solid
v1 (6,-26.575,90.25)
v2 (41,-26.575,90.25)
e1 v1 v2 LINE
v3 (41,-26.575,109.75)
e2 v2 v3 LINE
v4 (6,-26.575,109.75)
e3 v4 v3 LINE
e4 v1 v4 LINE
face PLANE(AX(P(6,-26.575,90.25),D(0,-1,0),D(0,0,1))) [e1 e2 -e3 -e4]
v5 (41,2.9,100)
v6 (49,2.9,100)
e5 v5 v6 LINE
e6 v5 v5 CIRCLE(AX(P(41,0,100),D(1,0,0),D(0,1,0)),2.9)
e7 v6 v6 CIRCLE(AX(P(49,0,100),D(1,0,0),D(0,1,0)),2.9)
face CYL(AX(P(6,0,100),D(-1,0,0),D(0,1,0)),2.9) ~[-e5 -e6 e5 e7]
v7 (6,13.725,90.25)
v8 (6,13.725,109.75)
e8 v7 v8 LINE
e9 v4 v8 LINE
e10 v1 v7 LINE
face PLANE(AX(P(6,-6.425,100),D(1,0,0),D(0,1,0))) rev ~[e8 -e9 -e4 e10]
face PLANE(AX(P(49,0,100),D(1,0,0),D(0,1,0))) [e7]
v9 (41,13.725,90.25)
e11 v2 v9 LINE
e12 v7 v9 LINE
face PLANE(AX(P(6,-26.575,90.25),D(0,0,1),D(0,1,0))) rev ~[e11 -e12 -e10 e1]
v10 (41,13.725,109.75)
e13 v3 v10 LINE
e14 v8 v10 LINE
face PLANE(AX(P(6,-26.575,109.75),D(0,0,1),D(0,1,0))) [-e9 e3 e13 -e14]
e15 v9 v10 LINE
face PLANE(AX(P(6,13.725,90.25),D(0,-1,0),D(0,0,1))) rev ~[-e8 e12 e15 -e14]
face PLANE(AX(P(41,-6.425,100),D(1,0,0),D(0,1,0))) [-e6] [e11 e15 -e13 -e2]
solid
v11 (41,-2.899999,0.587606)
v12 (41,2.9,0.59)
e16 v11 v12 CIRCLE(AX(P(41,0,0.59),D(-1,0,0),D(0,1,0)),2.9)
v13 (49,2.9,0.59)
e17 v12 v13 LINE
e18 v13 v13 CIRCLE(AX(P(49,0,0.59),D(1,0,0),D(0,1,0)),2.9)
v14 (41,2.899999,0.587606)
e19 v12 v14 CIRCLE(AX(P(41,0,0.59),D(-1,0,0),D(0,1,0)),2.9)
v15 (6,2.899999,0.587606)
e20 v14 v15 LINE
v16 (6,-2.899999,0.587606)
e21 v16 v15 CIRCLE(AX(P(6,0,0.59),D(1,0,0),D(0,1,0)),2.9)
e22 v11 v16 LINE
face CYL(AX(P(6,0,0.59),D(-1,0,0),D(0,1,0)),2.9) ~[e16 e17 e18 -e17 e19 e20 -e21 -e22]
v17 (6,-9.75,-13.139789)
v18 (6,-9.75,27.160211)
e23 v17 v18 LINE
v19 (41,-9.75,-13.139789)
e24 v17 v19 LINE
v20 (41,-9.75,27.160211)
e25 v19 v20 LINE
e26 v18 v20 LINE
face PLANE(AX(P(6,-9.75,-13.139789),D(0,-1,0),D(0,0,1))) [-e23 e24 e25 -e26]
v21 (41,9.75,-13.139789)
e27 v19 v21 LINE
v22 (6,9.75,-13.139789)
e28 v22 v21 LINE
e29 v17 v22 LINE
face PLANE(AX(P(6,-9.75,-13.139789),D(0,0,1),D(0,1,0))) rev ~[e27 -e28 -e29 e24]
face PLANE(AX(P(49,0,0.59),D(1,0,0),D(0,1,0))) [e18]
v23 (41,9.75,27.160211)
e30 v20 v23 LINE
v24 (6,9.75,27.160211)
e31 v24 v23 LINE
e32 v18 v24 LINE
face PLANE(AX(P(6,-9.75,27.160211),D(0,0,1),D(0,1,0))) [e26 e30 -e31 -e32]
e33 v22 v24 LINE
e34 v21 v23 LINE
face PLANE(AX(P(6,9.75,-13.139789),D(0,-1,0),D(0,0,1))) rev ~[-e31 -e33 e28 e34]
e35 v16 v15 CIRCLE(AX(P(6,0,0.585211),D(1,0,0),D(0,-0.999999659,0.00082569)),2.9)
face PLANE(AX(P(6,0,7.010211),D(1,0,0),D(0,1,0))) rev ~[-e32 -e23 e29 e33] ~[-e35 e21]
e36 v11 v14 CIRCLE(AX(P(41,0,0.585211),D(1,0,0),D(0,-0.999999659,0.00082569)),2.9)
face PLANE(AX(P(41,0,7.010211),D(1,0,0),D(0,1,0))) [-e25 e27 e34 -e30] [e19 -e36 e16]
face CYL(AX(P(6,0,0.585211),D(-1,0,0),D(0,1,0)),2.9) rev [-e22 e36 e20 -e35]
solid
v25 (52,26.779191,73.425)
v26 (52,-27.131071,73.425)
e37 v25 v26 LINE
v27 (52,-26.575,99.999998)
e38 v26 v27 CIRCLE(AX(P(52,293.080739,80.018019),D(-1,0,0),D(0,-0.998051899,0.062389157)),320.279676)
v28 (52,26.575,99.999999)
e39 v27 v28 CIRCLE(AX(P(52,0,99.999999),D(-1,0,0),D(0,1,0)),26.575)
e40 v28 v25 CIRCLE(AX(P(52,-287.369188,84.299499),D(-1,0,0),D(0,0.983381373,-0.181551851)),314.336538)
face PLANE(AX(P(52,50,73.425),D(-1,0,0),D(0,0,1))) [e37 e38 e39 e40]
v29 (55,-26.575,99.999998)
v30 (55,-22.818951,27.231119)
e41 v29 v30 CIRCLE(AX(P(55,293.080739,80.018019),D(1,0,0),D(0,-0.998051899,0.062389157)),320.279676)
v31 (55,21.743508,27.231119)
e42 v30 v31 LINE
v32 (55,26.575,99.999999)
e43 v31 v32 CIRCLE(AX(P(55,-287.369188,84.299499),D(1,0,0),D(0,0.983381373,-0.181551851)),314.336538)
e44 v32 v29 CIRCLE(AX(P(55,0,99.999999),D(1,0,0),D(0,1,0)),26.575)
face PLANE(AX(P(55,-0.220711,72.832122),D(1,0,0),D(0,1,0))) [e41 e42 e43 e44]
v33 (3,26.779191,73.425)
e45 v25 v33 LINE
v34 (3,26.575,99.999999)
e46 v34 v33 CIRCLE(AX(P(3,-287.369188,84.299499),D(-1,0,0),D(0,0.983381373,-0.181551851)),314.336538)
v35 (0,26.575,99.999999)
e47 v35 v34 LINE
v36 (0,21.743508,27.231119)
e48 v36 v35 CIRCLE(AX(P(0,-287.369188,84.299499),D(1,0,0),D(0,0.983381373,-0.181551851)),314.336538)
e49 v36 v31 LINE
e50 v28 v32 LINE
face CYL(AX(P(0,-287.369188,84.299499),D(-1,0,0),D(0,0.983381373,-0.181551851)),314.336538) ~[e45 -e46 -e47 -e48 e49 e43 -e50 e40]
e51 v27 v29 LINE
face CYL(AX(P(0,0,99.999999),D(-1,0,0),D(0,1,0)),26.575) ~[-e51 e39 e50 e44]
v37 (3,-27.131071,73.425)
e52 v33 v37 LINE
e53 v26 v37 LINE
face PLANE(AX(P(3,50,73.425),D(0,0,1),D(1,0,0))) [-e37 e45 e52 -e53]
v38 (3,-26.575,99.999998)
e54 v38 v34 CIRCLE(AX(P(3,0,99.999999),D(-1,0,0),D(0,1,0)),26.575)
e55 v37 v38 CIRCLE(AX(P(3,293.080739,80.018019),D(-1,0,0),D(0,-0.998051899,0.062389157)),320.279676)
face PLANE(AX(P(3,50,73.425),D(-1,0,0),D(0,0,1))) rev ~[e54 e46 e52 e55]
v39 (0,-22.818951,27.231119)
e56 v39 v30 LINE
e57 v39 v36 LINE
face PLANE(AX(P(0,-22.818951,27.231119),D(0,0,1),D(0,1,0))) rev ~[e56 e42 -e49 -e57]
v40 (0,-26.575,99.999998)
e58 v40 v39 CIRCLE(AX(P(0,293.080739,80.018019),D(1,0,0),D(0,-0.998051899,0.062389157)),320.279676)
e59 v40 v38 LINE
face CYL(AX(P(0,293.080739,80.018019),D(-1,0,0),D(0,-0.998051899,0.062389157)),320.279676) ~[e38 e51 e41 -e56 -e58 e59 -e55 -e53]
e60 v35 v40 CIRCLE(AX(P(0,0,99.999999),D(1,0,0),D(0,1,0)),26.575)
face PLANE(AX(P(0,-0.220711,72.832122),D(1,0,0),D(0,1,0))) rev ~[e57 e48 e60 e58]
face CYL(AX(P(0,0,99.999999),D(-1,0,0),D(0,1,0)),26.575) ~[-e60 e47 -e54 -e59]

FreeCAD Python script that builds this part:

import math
import FreeCAD as App
import Part
import Sketcher

V = App.Vector
Q = App.Units.Quantity

doc = App.newDocument("Part")
body = doc.addObject("PartDesign::Body", "Body")

sketch1 = doc.addObject("Sketcher::SketchObject", "Sketch")
body.addObject(sketch1)
sketch1.AttachmentSupport = (doc.YZ_Plane, [""])
sketch1.MapMode = "FlatFace"
sketch1.addGeometry(Part.ArcOfCircle(Part.Circle(V(0, 100, 0), V(0, 0, 1), 27), math.radians(0), math.radians(180)), False)
sketch1.addGeometry(Part.ArcOfCircle(Part.Circle(V(293, 80, 0), V(0, 0, 1), 320), math.radians(176.42), math.radians(189.49)), False)
sketch1.addGeometry(Part.LineSegment(V(-23, 27, 0), V(22, 27, 0)), False)
sketch1.addGeometry(Part.ArcOfCircle(Part.Circle(V(-287, 84, 0), V(0, 0, 1), 314), math.radians(-10.46), math.radians(2.86)), False)
sketch1.addConstraint(Sketcher.Constraint("Coincident", 0, 2, 1, 1))
sketch1.addConstraint(Sketcher.Constraint("Coincident", 1, 2, 2, 1))
sketch1.addConstraint(Sketcher.Constraint("Coincident", 2, 2, 3, 1))
sketch1.addConstraint(Sketcher.Constraint("Coincident", 3, 2, 0, 1))
sketch1.addConstraint(Sketcher.Constraint("Horizontal", 2))
sketch1.addConstraint(Sketcher.Constraint("Symmetric", 0, 2, 3, 2, -2))
sketch1.addConstraint(Sketcher.Constraint("DistanceY", -1, 1, 0, 3, Q("99.999999 mm")))
sketch1.addConstraint(Sketcher.Constraint("DistanceY", -1, 1, 0, 2, Q("99.999998 mm")))
sketch1.addConstraint(Sketcher.Constraint("Radius", 0, Q("26.575 mm")))
sketch1.addConstraint(Sketcher.Constraint("Radius", 1, Q("320.279676 mm")))
sketch1.addConstraint(Sketcher.Constraint("Radius", 3, Q("314.336538 mm")))
sketch1.addConstraint(Sketcher.Constraint("DistanceX", 2, 1, 2, 2, Q("44.562459 mm")))
sketch1.addConstraint(Sketcher.Constraint("DistanceY", -1, 1, 3, 3, Q("84.299499 mm")))
sketch1.addConstraint(Sketcher.Constraint("DistanceY", 2, 2, 1, 3, Q("52.7869 mm")))
pad1 = doc.addObject("PartDesign::Pad", "Pad")
body.addObject(pad1)
pad1.Profile = sketch1
pad1.Length = 55

sketch2 = doc.addObject("Sketcher::SketchObject", "Sketch001")
body.addObject(sketch2)
sketch2.AttachmentSupport = (doc.XZ_Plane, [""])
sketch2.MapMode = "FlatFace"
sketch2.AttachmentOffset = App.Placement(V(0, 0, -50), App.Rotation())
sketch2.addGeometry(Part.LineSegment(V(3, 127, 0), V(3, 73, 0)), False)
sketch2.addGeometry(Part.LineSegment(V(3, 73, 0), V(52, 73, 0)), False)
sketch2.addGeometry(Part.LineSegment(V(52, 73, 0), V(52, 127, 0)), False)
sketch2.addGeometry(Part.LineSegment(V(52, 127, 0), V(3, 127, 0)), False)
sketch2.addConstraint(Sketcher.Constraint("Coincident", 0, 2, 1, 1))
sketch2.addConstraint(Sketcher.Constraint("Coincident", 1, 2, 2, 1))
sketch2.addConstraint(Sketcher.Constraint("Coincident", 2, 2, 3, 1))
sketch2.addConstraint(Sketcher.Constraint("Coincident", 3, 2, 0, 1))
sketch2.addConstraint(Sketcher.Constraint("Vertical", 0))
sketch2.addConstraint(Sketcher.Constraint("Horizontal", 1))
sketch2.addConstraint(Sketcher.Constraint("Vertical", 2))
sketch2.addConstraint(Sketcher.Constraint("Horizontal", 3))
sketch2.addConstraint(Sketcher.Constraint("DistanceX", 1, 1, 1, 2, Q("49 mm")))
sketch2.addConstraint(Sketcher.Constraint("DistanceX", -1, 1, 0, 2, Q("3 mm")))
sketch2.addConstraint(Sketcher.Constraint("DistanceY", 0, 2, 0, 1, Q("53.15 mm")))
sketch2.addConstraint(Sketcher.Constraint("DistanceY", -1, 1, 0, 2, Q("73.425 mm")))
pocket1 = doc.addObject("PartDesign::Pocket", "Pocket")
body.addObject(pocket1)
pocket1.Profile = sketch2
pocket1.Length = 100
pocket1.Reversed = True
body2 = doc.addObject("PartDesign::Body", "Body001")

sketch3 = doc.addObject("Sketcher::SketchObject", "Sketch002")
body2.addObject(sketch3)
sketch3.AttachmentSupport = (doc.getObject("YZ_Plane001"), [""])
sketch3.MapMode = "FlatFace"
sketch3.addGeometry(Part.LineSegment(V(-26.6, 109.8, 0), V(-26.6, 90.2, 0)), False)
sketch3.addGeometry(Part.LineSegment(V(-26.6, 90.2, 0), V(13.7, 90.2, 0)), False)
sketch3.addGeometry(Part.LineSegment(V(13.7, 90.2, 0), V(13.7, 109.8, 0)), False)
sketch3.addGeometry(Part.LineSegment(V(13.7, 109.8, 0), V(-26.6, 109.8, 0)), False)
sketch3.addGeometry(Part.Circle(V(0, 100, 0), V(0, 0, 1), 2.9), False)
sketch3.addConstraint(Sketcher.Constraint("Coincident", 0, 2, 1, 1))
sketch3.addConstraint(Sketcher.Constraint("Coincident", 1, 2, 2, 1))
sketch3.addConstraint(Sketcher.Constraint("Coincident", 2, 2, 3, 1))
sketch3.addConstraint(Sketcher.Constraint("Coincident", 3, 2, 0, 1))
sketch3.addConstraint(Sketcher.Constraint("Vertical", 0))
sketch3.addConstraint(Sketcher.Constraint("Horizontal", 1))
sketch3.addConstraint(Sketcher.Constraint("Vertical", 2))
sketch3.addConstraint(Sketcher.Constraint("Horizontal", 3))
sketch3.addConstraint(Sketcher.Constraint("PointOnObject", 4, 3, -2))
sketch3.addConstraint(Sketcher.Constraint("Diameter", 4, Q("5.8 mm")))
sketch3.addConstraint(Sketcher.Constraint("DistanceX", 1, 1, 1, 2, Q("40.3 mm")))
sketch3.addConstraint(Sketcher.Constraint("DistanceY", 0, 2, 0, 1, Q("19.5 mm")))
sketch3.addConstraint(Sketcher.Constraint("DistanceY", -1, 1, 4, 3, Q("100 mm")))
sketch3.addConstraint(Sketcher.Constraint("DistanceY", -1, 1, 0, 2, Q("90.25 mm")))
sketch3.addConstraint(Sketcher.Constraint("DistanceX", 0, 2, -1, 1, Q("26.575 mm")))
pad2 = doc.addObject("PartDesign::Pad", "Pad001")
body2.addObject(pad2)
pad2.Profile = sketch3
pad2.Length = 35

sketch4 = doc.addObject("Sketcher::SketchObject", "Sketch003")
body2.addObject(sketch4)
sketch4.AttachmentSupport = (doc.getObject("YZ_Plane001"), [""])
sketch4.MapMode = "FlatFace"
sketch4.addGeometry(Part.Circle(V(0, 100, 0), V(0, 0, 1), 2.9), False)
sketch4.addConstraint(Sketcher.Constraint("PointOnObject", 0, 3, -2))
sketch4.addConstraint(Sketcher.Constraint("Diameter", 0, Q("5.8 mm")))
sketch4.addConstraint(Sketcher.Constraint("DistanceY", -1, 1, 0, 3, Q("100 mm")))
pad3 = doc.addObject("PartDesign::Pad", "Pad002")
body2.addObject(pad3)
pad3.Profile = sketch4
pad3.Length = 43
body3 = doc.addObject("PartDesign::Body", "Body002")
doc.recompute()

body2.Placement = App.Placement(V(6, 0, 0), App.Rotation(V(0, 0, 1), 0))
boolean = doc.addObject("PartDesign::Boolean", "Boolean")
body3.addObject(boolean)
boolean.Type = "Fuse"
boolean.addObjects([body2])
body4 = doc.addObject("PartDesign::Body", "Body003")

sketch5 = doc.addObject("Sketcher::SketchObject", "Sketch004")
body4.addObject(sketch5)
sketch5.AttachmentSupport = (doc.getObject("YZ_Plane003"), [""])
sketch5.MapMode = "FlatFace"
sketch5.addGeometry(Part.LineSegment(V(-9.8, 27.2, 0), V(-9.8, -13.1, 0)), False)
sketch5.addGeometry(Part.LineSegment(V(-9.8, -13.1, 0), V(9.8, -13.1, 0)), False)
sketch5.addGeometry(Part.LineSegment(V(9.8, -13.1, 0), V(9.8, 27.2, 0)), False)
sketch5.addGeometry(Part.LineSegment(V(9.8, 27.2, 0), V(-9.8, 27.2, 0)), False)
sketch5.addGeometry(Part.Circle(V(0, 0.6, 0), V(0, 0, 1), 2.9), False)
sketch5.addConstraint(Sketcher.Constraint("Coincident", 0, 2, 1, 1))
sketch5.addConstraint(Sketcher.Constraint("Coincident", 1, 2, 2, 1))
sketch5.addConstraint(Sketcher.Constraint("Coincident", 2, 2, 3, 1))
sketch5.addConstraint(Sketcher.Constraint("Coincident", 3, 2, 0, 1))
sketch5.addConstraint(Sketcher.Constraint("Vertical", 0))
sketch5.addConstraint(Sketcher.Constraint("Horizontal", 1))
sketch5.addConstraint(Sketcher.Constraint("Vertical", 2))
sketch5.addConstraint(Sketcher.Constraint("Horizontal", 3))
sketch5.addConstraint(Sketcher.Constraint("PointOnObject", 4, 3, -2))
sketch5.addConstraint(Sketcher.Constraint("Diameter", 4, Q("5.8 mm")))
sketch5.addConstraint(Sketcher.Constraint("DistanceX", 1, 1, 1, 2, Q("19.5 mm")))
sketch5.addConstraint(Sketcher.Constraint("DistanceY", 0, 2, 0, 1, Q("40.3 mm")))
sketch5.addConstraint(Sketcher.Constraint("DistanceX", 0, 2, -1, 1, Q("9.75 mm")))
sketch5.addConstraint(Sketcher.Constraint("DistanceY", 0, 2, 4, 3, Q("13.725 mm")))
sketch5.addConstraint(Sketcher.Constraint("DistanceY", -1, 1, 4, 3, Q("0.585211 mm")))
pad4 = doc.addObject("PartDesign::Pad", "Pad003")
body4.addObject(pad4)
pad4.Profile = sketch5
pad4.Length = 35

sketch6 = doc.addObject("Sketcher::SketchObject", "Sketch005")
body4.addObject(sketch6)
sketch6.AttachmentSupport = (doc.getObject("YZ_Plane003"), [""])
sketch6.MapMode = "FlatFace"
sketch6.addGeometry(Part.Circle(V(0, 0.6, 0), V(0, 0, 1), 2.9), False)
sketch6.addConstraint(Sketcher.Constraint("PointOnObject", 0, 3, -2))
sketch6.addConstraint(Sketcher.Constraint("Diameter", 0, Q("5.8 mm")))
sketch6.addConstraint(Sketcher.Constraint("DistanceY", -1, 1, 0, 3, Q("0.59 mm")))
pad5 = doc.addObject("PartDesign::Pad", "Pad004")
body4.addObject(pad5)
pad5.Profile = sketch6
pad5.Length = 43
body5 = doc.addObject("PartDesign::Body", "Body004")
doc.recompute()

body4.Placement = App.Placement(V(6, 0, 0), App.Rotation(V(0, 0, 1), 0))
boolean2 = doc.addObject("PartDesign::Boolean", "Boolean001")
body5.addObject(boolean2)
boolean2.Type = "Fuse"
boolean2.addObjects([body4])

doc.recompute()
